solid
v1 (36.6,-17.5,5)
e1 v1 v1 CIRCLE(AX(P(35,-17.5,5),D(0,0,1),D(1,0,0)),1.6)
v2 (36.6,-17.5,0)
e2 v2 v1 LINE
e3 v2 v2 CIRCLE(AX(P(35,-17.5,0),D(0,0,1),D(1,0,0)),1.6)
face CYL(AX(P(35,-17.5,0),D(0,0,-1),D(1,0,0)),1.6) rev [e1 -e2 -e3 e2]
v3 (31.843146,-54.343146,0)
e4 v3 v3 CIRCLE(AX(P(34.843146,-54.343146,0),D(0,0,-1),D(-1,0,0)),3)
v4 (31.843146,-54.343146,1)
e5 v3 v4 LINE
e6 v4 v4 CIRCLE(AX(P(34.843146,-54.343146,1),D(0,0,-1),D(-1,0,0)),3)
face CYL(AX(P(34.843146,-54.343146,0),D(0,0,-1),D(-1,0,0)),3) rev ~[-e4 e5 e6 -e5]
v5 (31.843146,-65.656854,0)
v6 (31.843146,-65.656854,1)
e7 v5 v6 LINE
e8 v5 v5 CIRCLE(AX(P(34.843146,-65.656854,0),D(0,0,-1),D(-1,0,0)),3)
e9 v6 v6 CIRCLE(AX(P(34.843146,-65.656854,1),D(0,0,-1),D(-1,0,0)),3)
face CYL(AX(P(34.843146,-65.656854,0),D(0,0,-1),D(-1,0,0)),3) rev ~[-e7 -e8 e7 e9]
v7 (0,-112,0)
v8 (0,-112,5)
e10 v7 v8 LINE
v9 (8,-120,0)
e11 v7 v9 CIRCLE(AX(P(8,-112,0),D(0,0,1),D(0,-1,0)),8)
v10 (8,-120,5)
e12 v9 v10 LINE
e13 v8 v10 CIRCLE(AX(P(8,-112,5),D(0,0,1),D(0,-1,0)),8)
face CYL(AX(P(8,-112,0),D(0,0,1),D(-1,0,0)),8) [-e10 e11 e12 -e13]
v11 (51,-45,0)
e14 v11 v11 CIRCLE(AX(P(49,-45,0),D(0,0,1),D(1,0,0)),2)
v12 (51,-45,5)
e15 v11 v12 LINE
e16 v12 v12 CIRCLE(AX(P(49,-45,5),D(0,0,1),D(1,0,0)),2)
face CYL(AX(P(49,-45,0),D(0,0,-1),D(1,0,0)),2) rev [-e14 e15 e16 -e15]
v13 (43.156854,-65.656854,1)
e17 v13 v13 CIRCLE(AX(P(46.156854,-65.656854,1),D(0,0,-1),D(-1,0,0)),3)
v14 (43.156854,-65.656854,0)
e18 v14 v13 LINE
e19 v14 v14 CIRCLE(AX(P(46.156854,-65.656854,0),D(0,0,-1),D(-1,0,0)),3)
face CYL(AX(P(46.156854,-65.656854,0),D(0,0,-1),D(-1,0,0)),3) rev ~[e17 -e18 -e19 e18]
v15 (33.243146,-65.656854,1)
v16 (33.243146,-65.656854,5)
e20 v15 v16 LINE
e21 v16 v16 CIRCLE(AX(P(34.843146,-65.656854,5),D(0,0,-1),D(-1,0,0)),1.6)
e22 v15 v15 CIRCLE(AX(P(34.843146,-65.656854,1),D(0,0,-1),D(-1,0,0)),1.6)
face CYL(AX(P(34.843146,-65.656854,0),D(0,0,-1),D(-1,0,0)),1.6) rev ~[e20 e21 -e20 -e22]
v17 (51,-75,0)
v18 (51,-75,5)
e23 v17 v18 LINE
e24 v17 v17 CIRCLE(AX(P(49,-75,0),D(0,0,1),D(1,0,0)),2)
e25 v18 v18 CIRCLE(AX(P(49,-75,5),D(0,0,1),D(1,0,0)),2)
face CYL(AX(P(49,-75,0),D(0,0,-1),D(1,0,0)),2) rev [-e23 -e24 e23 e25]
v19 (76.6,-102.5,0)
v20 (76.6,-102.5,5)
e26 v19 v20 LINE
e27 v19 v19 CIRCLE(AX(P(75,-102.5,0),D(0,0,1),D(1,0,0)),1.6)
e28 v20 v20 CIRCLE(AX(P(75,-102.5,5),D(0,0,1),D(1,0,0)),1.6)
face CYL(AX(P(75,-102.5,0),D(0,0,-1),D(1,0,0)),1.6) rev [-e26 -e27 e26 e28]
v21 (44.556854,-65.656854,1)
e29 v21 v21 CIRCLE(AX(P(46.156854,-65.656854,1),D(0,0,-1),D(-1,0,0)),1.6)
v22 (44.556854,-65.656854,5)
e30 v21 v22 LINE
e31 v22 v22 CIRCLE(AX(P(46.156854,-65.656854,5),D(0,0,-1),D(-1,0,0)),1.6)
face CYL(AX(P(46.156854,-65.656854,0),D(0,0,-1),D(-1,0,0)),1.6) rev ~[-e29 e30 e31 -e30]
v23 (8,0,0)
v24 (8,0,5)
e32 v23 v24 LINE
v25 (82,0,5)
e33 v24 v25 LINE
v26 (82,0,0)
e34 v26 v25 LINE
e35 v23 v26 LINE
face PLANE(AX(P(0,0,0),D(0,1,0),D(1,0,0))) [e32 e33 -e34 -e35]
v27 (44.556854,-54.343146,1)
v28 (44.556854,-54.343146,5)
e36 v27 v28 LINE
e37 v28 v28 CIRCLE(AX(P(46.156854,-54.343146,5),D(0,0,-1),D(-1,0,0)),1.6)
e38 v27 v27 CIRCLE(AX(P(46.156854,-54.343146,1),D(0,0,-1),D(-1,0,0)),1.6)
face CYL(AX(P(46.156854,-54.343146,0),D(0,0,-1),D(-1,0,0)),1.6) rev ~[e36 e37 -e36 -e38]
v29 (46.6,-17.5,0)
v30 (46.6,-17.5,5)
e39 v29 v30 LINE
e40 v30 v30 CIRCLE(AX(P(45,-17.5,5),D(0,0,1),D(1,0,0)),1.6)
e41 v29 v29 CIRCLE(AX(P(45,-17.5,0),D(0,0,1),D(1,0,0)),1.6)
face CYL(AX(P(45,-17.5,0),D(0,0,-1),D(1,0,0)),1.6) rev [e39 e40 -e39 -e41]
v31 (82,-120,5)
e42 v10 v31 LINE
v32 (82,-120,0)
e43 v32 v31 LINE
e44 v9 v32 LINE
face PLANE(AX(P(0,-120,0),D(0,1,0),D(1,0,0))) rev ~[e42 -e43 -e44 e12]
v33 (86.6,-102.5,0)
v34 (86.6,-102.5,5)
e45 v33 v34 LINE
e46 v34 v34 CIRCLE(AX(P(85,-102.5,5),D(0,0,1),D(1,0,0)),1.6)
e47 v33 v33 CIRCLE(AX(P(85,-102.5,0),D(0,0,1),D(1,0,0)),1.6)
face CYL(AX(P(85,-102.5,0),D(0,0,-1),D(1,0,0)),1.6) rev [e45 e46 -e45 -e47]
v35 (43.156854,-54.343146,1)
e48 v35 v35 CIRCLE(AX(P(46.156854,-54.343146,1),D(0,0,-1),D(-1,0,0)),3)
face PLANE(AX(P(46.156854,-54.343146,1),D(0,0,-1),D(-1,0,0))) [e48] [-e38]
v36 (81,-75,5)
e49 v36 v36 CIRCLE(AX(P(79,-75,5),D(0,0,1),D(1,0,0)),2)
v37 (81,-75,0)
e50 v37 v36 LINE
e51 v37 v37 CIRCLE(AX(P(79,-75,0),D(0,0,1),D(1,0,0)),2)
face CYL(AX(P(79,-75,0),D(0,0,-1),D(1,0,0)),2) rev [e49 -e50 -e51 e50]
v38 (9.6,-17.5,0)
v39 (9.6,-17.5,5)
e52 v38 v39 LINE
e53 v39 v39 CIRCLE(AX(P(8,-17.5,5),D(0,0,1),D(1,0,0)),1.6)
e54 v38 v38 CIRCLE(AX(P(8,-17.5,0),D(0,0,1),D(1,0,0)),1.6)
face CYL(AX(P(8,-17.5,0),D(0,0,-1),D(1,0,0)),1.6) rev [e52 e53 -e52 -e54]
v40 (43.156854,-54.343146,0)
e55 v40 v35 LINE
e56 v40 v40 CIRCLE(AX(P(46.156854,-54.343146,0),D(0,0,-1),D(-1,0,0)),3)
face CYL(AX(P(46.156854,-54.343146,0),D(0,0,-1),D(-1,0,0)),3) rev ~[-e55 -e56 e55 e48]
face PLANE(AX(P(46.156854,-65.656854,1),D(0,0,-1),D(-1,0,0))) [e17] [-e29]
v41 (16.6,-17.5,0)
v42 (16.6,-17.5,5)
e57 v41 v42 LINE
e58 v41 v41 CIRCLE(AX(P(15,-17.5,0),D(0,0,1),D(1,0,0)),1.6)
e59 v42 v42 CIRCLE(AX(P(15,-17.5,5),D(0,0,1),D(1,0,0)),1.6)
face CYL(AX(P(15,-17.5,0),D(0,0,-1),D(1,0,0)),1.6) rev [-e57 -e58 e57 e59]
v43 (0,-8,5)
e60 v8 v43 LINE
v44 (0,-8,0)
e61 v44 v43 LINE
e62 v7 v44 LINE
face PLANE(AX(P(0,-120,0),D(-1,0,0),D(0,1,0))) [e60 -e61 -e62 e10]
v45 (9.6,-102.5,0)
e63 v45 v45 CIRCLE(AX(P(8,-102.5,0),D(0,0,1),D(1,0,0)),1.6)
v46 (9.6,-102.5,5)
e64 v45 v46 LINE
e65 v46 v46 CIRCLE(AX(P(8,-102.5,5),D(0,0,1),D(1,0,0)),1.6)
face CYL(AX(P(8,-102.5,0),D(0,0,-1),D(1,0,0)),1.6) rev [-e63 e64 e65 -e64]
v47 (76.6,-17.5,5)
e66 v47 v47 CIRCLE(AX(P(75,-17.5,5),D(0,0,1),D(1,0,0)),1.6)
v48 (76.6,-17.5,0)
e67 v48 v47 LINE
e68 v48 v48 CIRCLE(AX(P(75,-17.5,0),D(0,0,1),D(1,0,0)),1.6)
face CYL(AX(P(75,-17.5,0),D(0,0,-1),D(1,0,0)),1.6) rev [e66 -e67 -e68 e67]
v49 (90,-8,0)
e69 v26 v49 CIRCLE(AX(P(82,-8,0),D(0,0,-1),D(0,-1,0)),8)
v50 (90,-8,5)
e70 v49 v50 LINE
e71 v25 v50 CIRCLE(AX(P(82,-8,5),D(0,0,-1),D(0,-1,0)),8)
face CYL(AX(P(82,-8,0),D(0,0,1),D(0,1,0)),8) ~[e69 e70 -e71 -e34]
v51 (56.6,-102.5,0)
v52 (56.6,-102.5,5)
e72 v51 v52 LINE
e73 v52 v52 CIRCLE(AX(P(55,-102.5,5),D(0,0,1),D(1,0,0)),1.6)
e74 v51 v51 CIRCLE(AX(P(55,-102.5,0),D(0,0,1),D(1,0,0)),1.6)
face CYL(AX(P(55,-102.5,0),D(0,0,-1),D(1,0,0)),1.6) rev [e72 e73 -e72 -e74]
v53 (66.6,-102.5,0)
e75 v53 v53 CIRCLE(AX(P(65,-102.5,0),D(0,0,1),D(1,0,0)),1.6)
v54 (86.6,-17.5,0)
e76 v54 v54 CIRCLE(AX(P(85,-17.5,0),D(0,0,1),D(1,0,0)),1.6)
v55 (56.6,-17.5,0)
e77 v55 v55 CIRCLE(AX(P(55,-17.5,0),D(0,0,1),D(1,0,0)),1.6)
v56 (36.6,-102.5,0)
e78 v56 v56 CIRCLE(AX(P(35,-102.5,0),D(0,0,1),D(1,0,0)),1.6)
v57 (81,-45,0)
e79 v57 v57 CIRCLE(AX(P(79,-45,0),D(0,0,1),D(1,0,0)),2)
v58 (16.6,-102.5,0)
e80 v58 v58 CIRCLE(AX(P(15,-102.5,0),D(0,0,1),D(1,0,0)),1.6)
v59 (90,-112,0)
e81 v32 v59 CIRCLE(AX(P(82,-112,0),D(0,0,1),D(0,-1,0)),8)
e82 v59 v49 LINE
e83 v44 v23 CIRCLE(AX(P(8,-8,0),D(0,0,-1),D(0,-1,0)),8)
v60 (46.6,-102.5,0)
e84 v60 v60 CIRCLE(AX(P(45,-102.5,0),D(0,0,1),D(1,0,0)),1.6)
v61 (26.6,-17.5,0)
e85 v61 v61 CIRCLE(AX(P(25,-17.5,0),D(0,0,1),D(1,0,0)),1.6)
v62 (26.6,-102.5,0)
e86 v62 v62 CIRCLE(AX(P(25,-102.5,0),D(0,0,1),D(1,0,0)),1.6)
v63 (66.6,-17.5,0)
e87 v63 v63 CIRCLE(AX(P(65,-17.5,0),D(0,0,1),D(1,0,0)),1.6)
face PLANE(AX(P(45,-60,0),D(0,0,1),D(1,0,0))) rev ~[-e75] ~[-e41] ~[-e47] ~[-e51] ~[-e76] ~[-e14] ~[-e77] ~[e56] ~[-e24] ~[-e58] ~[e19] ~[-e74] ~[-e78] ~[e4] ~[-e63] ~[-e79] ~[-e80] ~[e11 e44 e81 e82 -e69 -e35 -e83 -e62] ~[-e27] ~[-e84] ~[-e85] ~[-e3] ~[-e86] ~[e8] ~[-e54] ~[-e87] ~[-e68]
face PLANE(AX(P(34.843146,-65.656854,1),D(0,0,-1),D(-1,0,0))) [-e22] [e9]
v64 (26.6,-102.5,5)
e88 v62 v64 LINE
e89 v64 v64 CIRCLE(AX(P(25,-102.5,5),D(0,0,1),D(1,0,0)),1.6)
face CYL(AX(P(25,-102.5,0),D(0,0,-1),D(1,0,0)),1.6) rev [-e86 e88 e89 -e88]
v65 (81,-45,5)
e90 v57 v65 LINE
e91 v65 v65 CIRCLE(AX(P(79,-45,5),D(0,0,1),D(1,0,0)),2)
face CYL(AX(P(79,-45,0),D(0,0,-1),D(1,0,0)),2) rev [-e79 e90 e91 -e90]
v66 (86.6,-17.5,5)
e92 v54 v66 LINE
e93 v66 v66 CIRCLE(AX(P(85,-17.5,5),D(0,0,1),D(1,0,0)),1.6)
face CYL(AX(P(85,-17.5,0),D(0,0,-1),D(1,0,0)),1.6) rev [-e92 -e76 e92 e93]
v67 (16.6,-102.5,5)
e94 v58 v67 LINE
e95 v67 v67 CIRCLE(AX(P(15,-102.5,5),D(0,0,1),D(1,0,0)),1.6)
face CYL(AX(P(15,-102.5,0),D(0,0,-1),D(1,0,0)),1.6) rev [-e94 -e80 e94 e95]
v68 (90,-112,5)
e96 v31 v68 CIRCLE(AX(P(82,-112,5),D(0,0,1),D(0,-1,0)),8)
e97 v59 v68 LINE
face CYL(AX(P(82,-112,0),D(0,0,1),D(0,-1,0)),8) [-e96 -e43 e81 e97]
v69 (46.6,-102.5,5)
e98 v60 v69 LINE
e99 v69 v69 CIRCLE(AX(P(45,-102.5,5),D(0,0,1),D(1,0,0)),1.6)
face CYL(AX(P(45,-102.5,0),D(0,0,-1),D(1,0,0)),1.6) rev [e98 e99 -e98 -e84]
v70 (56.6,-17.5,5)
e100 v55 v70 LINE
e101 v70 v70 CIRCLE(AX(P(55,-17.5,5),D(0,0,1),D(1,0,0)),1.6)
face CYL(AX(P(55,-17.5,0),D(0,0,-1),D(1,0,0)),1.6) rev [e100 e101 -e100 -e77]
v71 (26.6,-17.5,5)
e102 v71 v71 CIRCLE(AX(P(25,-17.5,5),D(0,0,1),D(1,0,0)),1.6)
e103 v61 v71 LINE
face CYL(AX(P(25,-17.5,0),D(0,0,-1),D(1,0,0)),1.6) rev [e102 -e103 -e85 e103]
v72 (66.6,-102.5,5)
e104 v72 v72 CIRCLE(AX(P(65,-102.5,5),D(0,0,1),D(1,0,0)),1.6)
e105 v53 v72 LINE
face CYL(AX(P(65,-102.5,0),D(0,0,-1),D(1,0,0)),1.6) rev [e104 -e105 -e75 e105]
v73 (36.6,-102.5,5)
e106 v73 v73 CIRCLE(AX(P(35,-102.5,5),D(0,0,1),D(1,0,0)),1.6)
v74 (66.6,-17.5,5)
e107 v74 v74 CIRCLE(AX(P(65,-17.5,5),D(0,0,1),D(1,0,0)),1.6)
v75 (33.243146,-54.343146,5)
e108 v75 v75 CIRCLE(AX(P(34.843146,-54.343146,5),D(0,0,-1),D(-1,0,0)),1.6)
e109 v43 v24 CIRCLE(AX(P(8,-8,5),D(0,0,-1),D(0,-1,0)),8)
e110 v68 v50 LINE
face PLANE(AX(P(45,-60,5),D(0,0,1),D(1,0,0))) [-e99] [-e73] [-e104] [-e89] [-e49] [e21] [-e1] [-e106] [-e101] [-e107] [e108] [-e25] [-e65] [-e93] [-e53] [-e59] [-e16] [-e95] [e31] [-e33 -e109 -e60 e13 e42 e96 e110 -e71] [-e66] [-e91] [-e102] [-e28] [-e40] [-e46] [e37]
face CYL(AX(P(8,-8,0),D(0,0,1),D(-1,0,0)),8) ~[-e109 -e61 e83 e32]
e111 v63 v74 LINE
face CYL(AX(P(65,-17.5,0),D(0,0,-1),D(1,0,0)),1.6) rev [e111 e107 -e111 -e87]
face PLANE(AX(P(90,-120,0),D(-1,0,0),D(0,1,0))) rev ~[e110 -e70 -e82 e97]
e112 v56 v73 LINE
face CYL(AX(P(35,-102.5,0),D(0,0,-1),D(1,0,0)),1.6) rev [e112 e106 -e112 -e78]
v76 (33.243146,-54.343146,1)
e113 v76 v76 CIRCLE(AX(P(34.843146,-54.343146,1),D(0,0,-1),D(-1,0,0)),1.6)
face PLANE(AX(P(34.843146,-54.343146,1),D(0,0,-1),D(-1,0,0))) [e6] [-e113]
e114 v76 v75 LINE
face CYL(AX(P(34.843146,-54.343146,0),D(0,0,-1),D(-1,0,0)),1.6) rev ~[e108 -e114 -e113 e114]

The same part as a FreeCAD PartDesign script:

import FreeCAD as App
import Part
import Sketcher
from FreeCAD import Vector


def edges_at(feature, points):
    """Names of the edges that pass closest to the given points."""
    edges = feature.Shape.Edges
    near = lambda p: min(range(len(edges)), key=lambda i: edges[i].distToShape(Part.Vertex(*p))[0])
    return sorted({f"Edge{near(p) + 1}" for p in points})

doc = App.newDocument("Part")
body = doc.addObject("PartDesign::Body", "Body")

# Sketch on XY plane
sketch1 = doc.addObject("Sketcher::SketchObject", "Sketch")
body.addObject(sketch1)
sketch1.AttachmentSupport = (doc.XY_Plane, [""])
sketch1.MapMode = "FlatFace"
sketch1.addGeometry([
    Part.LineSegment(Vector(0, 0, 0), Vector(0, -120, 0)),  # 0
    Part.LineSegment(Vector(0, -120, 0), Vector(90, -120, 0)),  # 1
    Part.LineSegment(Vector(90, -120, 0), Vector(90, 0, 0)),  # 2
    Part.LineSegment(Vector(90, 0, 0), Vector(0, 0, 0)),  # 3
    Part.Circle(Vector(8, -102.5, 0), Vector(0, 0, 1), 1.6),  # 4
    Part.Circle(Vector(15, -102.5, 0), Vector(0, 0, 1), 1.6),  # 5
    Part.Circle(Vector(25, -102.5, 0), Vector(0, 0, 1), 1.6),  # 6
    Part.Circle(Vector(35, -102.5, 0), Vector(0, 0, 1), 1.6),  # 7
    Part.Circle(Vector(45, -102.5, 0), Vector(0, 0, 1), 1.6),  # 8
    Part.Circle(Vector(55, -102.5, 0), Vector(0, 0, 1), 1.6),  # 9
    Part.Circle(Vector(65, -102.5, 0), Vector(0, 0, 1), 1.6),  # 10
    Part.Circle(Vector(75, -102.5, 0), Vector(0, 0, 1), 1.6),  # 11
    Part.Circle(Vector(85, -102.5, 0), Vector(0, 0, 1), 1.6),  # 12
    Part.Circle(Vector(49, -75, 0), Vector(0, 0, 1), 2),  # 13
    Part.Circle(Vector(79, -75, 0), Vector(0, 0, 1), 2),  # 14
    Part.Circle(Vector(8, -17.5, 0), Vector(0, 0, 1), 1.6),  # 15
    Part.Circle(Vector(15, -17.5, 0), Vector(0, 0, 1), 1.6),  # 16
    Part.Circle(Vector(25, -17.5, 0), Vector(0, 0, 1), 1.6),  # 17
    Part.Circle(Vector(35, -17.5, 0), Vector(0, 0, 1), 1.6),  # 18
    Part.Circle(Vector(45, -17.5, 0), Vector(0, 0, 1), 1.6),  # 19
    Part.Circle(Vector(49, -45, 0), Vector(0, 0, 1), 2),  # 20
    Part.Circle(Vector(79, -45, 0), Vector(0, 0, 1), 2),  # 21
    Part.Circle(Vector(55, -17.5, 0), Vector(0, 0, 1), 1.6),  # 22
    Part.Circle(Vector(65, -17.5, 0), Vector(0, 0, 1), 1.6),  # 23
    Part.Circle(Vector(75, -17.5, 0), Vector(0, 0, 1), 1.6),  # 24
    Part.Circle(Vector(85, -17.5, 0), Vector(0, 0, 1), 1.6),  # 25
], False)
sketch1.addConstraint([
    Sketcher.Constraint("Coincident", 0, 2, 1, 1),
    Sketcher.Constraint("Coincident", 1, 2, 2, 1),
    Sketcher.Constraint("Coincident", 2, 2, 3, 1),
    Sketcher.Constraint("Coincident", 3, 2, 0, 1),
    Sketcher.Constraint("Vertical", 0),
    Sketcher.Constraint("Horizontal", 1),
    Sketcher.Constraint("Vertical", 2),
    Sketcher.Constraint("Horizontal", 3),
    Sketcher.Constraint("Coincident", 3, 2, -1, 1),
    Sketcher.Constraint("Equal", 4, 5),
    Sketcher.Constraint("Equal", 5, 6),
    Sketcher.Constraint("Equal", 6, 7),
    Sketcher.Constraint("Equal", 7, 8),
    Sketcher.Constraint("Equal", 8, 9),
    Sketcher.Constraint("Equal", 9, 10),
    Sketcher.Constraint("Equal", 10, 11),
    Sketcher.Constraint("Equal", 11, 12),
    Sketcher.Constraint("Equal", 13, 14),
    Sketcher.Constraint("Equal", 12, 15),
    Sketcher.Constraint("Equal", 15, 16),
    Sketcher.Constraint("Equal", 16, 17),
    Sketcher.Constraint("Equal", 17, 18),
    Sketcher.Constraint("Equal", 18, 19),
    Sketcher.Constraint("Equal", 14, 20),
    Sketcher.Constraint("Equal", 20, 21),
    Sketcher.Constraint("Equal", 19, 22),
    Sketcher.Constraint("Equal", 22, 23),
    Sketcher.Constraint("Equal", 23, 24),
    Sketcher.Constraint("Equal", 24, 25),
    Sketcher.Constraint("Horizontal", 4, 3, 5, 3),
    Sketcher.Constraint("Horizontal", 5, 3, 6, 3),
    Sketcher.Constraint("Horizontal", 6, 3, 7, 3),
    Sketcher.Constraint("Horizontal", 7, 3, 8, 3),
    Sketcher.Constraint("Horizontal", 8, 3, 9, 3),
    Sketcher.Constraint("Horizontal", 9, 3, 10, 3),
    Sketcher.Constraint("Horizontal", 10, 3, 11, 3),
    Sketcher.Constraint("Horizontal", 11, 3, 12, 3),
    Sketcher.Constraint("Horizontal", 13, 3, 14, 3),
    Sketcher.Constraint("Horizontal", 15, 3, 16, 3),
    Sketcher.Constraint("Horizontal", 16, 3, 17, 3),
    Sketcher.Constraint("Horizontal", 17, 3, 18, 3),
    Sketcher.Constraint("Horizontal", 18, 3, 19, 3),
    Sketcher.Constraint("Horizontal", 20, 3, 21, 3),
    Sketcher.Constraint("Horizontal", 19, 3, 22, 3),
    Sketcher.Constraint("Horizontal", 22, 3, 23, 3),
    Sketcher.Constraint("Horizontal", 23, 3, 24, 3),
    Sketcher.Constraint("Horizontal", 24, 3, 25, 3),
    Sketcher.Constraint("Vertical", 4, 3, 15, 3),
    Sketcher.Constraint("Vertical", 5, 3, 16, 3),
    Sketcher.Constraint("Vertical", 6, 3, 17, 3),
    Sketcher.Constraint("Vertical", 7, 3, 18, 3),
    Sketcher.Constraint("Vertical", 8, 3, 19, 3),
    Sketcher.Constraint("Vertical", 13, 3, 20, 3),
    Sketcher.Constraint("Vertical", 14, 3, 21, 3),
    Sketcher.Constraint("Vertical", 9, 3, 22, 3),
    Sketcher.Constraint("Vertical", 10, 3, 23, 3),
    Sketcher.Constraint("Vertical", 11, 3, 24, 3),
    Sketcher.Constraint("Vertical", 12, 3, 25, 3),
    Sketcher.Constraint("Diameter", 13, 4.0),
    Sketcher.Constraint("Diameter", 4, 3.2),
    Sketcher.Constraint("DistanceX", 1, 1, 1, 2, 90.0),
    Sketcher.Constraint("DistanceY", 0, 2, 0, 1, 120.0),
    Sketcher.Constraint("DistanceX", -1, 1, 4, 3, 8.0),
    Sketcher.Constraint("DistanceX", -1, 1, 5, 3, 15.0),
    Sketcher.Constraint("DistanceX", -1, 1, 6, 3, 25.0),
    Sketcher.Constraint("DistanceX", -1, 1, 7, 3, 35.0),
    Sketcher.Constraint("DistanceX", -1, 1, 8, 3, 45.0),
    Sketcher.Constraint("DistanceX", -1, 1, 9, 3, 55.0),
    Sketcher.Constraint("DistanceX", -1, 1, 10, 3, 65.0),
    Sketcher.Constraint("DistanceX", -1, 1, 11, 3, 75.0),
    Sketcher.Constraint("DistanceX", -1, 1, 12, 3, 85.0),
    Sketcher.Constraint("DistanceX", -1, 1, 13, 3, 49.0),
    Sketcher.Constraint("DistanceY", 13, 3, -1, 1, 75.0),
    Sketcher.Constraint("DistanceX", -1, 1, 14, 3, 79.0),
    Sketcher.Constraint("DistanceY", 20, 3, -1, 1, 45.0),
    Sketcher.Constraint("DistanceY", 4, 3, 15, 3, 85.0),
    Sketcher.Constraint("DistanceY", 4, 3, -1, 1, 102.5),
])
pad1 = doc.addObject("PartDesign::Pad", "Pad")
body.addObject(pad1)
pad1.Profile = sketch1
pad1.Length = 5
doc.recompute()

fillet = doc.addObject("PartDesign::Fillet", "Fillet")
body.addObject(fillet)
fillet.Base = (pad1, edges_at(pad1, [
    (0, 0, 2.5),
    (90, 0, 2.5),
    (90, -120, 2.5),
    (0, -120, 2.5),
]))
fillet.Radius = 8

# Sketch on XY plane
sketch2 = doc.addObject("Sketcher::SketchObject", "Sketch001")
body.addObject(sketch2)
sketch2.AttachmentSupport = (doc.XY_Plane, [""])
sketch2.MapMode = "FlatFace"
sketch2.addGeometry([
    Part.Circle(Vector(46.2, -54.3, 0), Vector(0, 0, 1), 1.6),
    Part.Circle(Vector(34.8, -54.3, 0), Vector(0, 0, 1), 1.6),
    Part.Circle(Vector(34.8, -65.7, 0), Vector(0, 0, 1), 1.6),
    Part.Circle(Vector(46.2, -65.7, 0), Vector(0, 0, 1), 1.6),
], False)
sketch2.addConstraint([
    Sketcher.Constraint("Equal", 0, 1),
    Sketcher.Constraint("Equal", 1, 2),
    Sketcher.Constraint("Equal", 2, 3),
    Sketcher.Constraint("Horizontal", 0, 3, 1, 3),
    Sketcher.Constraint("Horizontal", 2, 3, 3, 3),
    Sketcher.Constraint("Vertical", 1, 3, 2, 3),
    Sketcher.Constraint("Vertical", 0, 3, 3, 3),
    Sketcher.Constraint("Diameter", 0, 3.2),
    Sketcher.Constraint("DistanceX", 1, 3, 0, 3, 11.313708),
    Sketcher.Constraint("DistanceY", 2, 3, 1, 3, 11.313708),
    Sketcher.Constraint("DistanceX", -1, 1, 0, 3, 46.156854),
    Sketcher.Constraint("DistanceY", 0, 3, -1, 1, 54.343146),
])
pocket1 = doc.addObject("PartDesign::Pocket", "Pocket")
body.addObject(pocket1)
pocket1.Profile = sketch2
pocket1.Length = 10
pocket1.Reversed = True

# Sketch on XY plane
sketch3 = doc.addObject("Sketcher::SketchObject", "Sketch002")
body.addObject(sketch3)
sketch3.AttachmentSupport = (doc.XY_Plane, [""])
sketch3.MapMode = "FlatFace"
sketch3.addGeometry([
    Part.Circle(Vector(46.2, -54.3, 0), Vector(0, 0, 1), 3),
    Part.Circle(Vector(34.8, -54.3, 0), Vector(0, 0, 1), 3),
    Part.Circle(Vector(34.8, -65.7, 0), Vector(0, 0, 1), 3),
    Part.Circle(Vector(46.2, -65.7, 0), Vector(0, 0, 1), 3),
], False)
sketch3.addConstraint([
    Sketcher.Constraint("Equal", 0, 1),
    Sketcher.Constraint("Equal", 1, 2),
    Sketcher.Constraint("Equal", 2, 3),
    Sketcher.Constraint("Horizontal", 0, 3, 1, 3),
    Sketcher.Constraint("Horizontal", 2, 3, 3, 3),
    Sketcher.Constraint("Vertical", 1, 3, 2, 3),
    Sketcher.Constraint("Vertical", 0, 3, 3, 3),
    Sketcher.Constraint("Diameter", 0, 6.0),
    Sketcher.Constraint("DistanceX", 1, 3, 0, 3, 11.313708),
    Sketcher.Constraint("DistanceY", 2, 3, 1, 3, 11.313708),
    Sketcher.Constraint("DistanceX", -1, 1, 0, 3, 46.156854),
    Sketcher.Constraint("DistanceY", 0, 3, -1, 1, 54.343146),
])
pocket2 = doc.addObject("PartDesign::Pocket", "Pocket001")
body.addObject(pocket2)
pocket2.Profile = sketch3
pocket2.Length = 1
pocket2.Reversed = True

doc.recompute()
